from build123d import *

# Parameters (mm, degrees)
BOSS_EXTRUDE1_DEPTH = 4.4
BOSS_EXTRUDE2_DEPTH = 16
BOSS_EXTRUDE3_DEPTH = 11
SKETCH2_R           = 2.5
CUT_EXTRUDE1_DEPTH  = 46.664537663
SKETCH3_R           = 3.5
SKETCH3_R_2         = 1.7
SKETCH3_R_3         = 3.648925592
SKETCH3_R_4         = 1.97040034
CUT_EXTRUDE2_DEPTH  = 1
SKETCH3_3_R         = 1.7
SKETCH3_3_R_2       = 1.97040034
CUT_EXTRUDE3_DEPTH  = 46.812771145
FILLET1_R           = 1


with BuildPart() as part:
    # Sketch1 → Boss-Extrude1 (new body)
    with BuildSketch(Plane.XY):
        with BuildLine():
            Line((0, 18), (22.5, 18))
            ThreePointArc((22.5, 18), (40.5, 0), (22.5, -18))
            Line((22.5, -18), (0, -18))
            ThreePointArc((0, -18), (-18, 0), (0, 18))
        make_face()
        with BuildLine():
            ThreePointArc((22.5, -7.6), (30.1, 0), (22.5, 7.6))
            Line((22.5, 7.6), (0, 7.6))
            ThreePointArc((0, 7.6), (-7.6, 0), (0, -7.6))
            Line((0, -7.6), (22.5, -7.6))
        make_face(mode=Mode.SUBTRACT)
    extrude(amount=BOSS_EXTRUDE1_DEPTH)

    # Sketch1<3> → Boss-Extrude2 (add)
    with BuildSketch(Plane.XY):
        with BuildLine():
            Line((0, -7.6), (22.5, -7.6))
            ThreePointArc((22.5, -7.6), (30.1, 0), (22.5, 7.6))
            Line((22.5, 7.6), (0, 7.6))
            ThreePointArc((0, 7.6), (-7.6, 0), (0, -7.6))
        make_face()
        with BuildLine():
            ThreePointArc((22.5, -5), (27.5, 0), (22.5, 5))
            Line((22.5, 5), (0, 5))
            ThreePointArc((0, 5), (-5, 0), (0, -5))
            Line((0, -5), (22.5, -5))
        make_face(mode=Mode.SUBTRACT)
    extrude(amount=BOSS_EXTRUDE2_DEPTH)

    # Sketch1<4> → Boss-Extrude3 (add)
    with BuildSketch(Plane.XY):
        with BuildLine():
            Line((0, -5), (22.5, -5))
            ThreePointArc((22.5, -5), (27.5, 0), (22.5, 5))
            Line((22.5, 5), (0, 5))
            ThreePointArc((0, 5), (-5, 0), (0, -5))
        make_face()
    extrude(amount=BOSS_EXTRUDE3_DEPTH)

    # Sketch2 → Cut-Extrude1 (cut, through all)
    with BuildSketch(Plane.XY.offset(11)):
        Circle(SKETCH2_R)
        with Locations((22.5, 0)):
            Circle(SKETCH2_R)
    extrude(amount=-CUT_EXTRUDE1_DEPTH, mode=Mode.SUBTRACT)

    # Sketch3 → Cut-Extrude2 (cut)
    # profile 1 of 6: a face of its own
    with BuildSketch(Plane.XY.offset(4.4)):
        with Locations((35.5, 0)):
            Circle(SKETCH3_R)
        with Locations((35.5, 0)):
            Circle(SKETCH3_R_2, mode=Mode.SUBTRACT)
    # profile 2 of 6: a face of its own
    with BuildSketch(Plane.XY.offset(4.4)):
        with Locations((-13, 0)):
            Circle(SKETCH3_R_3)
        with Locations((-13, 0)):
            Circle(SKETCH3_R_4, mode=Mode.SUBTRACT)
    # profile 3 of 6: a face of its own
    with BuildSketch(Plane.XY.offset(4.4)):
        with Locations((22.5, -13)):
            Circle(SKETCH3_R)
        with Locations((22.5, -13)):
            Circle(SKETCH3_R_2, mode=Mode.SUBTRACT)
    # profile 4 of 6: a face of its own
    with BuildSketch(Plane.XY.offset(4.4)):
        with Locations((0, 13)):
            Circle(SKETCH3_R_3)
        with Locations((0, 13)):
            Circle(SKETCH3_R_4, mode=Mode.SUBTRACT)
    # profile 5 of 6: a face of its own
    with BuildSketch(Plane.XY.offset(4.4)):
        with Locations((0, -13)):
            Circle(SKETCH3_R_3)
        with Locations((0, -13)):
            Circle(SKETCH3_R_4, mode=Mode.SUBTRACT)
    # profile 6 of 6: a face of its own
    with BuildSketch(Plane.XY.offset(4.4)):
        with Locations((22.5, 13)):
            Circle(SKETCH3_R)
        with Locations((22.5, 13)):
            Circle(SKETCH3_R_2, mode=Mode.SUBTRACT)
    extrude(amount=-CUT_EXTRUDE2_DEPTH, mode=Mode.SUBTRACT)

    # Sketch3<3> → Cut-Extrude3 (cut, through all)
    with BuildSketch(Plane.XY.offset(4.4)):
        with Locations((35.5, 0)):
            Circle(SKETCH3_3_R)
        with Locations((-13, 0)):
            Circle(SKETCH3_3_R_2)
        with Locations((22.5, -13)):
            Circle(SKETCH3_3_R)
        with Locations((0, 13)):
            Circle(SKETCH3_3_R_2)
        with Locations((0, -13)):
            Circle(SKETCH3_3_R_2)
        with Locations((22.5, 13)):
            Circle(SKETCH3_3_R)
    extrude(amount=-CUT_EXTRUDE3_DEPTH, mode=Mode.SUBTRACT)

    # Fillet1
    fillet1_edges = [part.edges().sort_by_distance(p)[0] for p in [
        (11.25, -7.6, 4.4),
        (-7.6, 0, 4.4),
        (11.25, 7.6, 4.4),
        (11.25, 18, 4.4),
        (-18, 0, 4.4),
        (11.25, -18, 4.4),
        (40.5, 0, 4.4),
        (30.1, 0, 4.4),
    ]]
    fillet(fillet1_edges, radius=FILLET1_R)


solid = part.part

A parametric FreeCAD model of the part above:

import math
import FreeCAD as App
import Part
import Sketcher
Q = App.Units.Quantity


def edges_at(feature, points):
    """Names of the edges that pass closest to the given points."""
    edges = feature.Shape.Edges
    near = lambda p: min(range(len(edges)), key=lambda i: edges[i].distToShape(Part.Vertex(*p))[0])
    return sorted({f"Edge{near(p) + 1}" for p in points})

doc = App.newDocument("Part")
params = doc.addObject("Spreadsheet::Sheet", "Params")
for row, (alias, value) in enumerate([
    ("sketch1_radius", "18 mm"),
    ("sketch1_radius2", "7.6 mm"),
    ("sketch1_width", "22.5 mm"),
    ("pad1_length", "4.4 mm"),
    ("sketch2_radius", "5 mm"),
    ("sketch2_radius2", "7.6 mm"),
    ("sketch2_width", "22.5 mm"),
    ("pad2_length", "16 mm"),
    ("sketch3_radius", "5 mm"),
    ("sketch3_width", "22.5 mm"),
    ("pad3_length", "11 mm"),
    ("sketch4_diameter", "5 mm"),
    ("sketch5_diameter", "7 mm"),
    ("sketch5_diameter2", "3.4 mm"),
    ("pocket2_length", "1 mm"),
    ("sketch6_diameter", "3.4 mm"),
    ("fillet_radius", "1 mm"),
], start=1):
    params.set(f"A{row}", alias)
    params.set(f"B{row}", "=" + value)
    params.setAlias(f"B{row}", alias)

body = doc.addObject("PartDesign::Body", "Body")

# Sketch on XY plane
sketch1 = doc.addObject("Sketcher::SketchObject", "Sketch")
body.addObject(sketch1)
sketch1.AttachmentSupport = (doc.XY_Plane, [""])
sketch1.MapMode = "FlatFace"
sketch1.addGeometry([
    Part.LineSegment(App.Vector(22, 18, 0), App.Vector(0, 18, 0)),  # 0
    Part.ArcOfCircle(Part.Circle(App.Vector(0, 0, 0), App.Vector(0, 0, 1), 18), math.radians(90), math.radians(270)),  # 1
    Part.LineSegment(App.Vector(0, -18, 0), App.Vector(22, -18, 0)),  # 2
    Part.ArcOfCircle(Part.Circle(App.Vector(22, 0, 0), App.Vector(0, 0, 1), 18), math.radians(-90), math.radians(90)),  # 3
    Part.LineSegment(App.Vector(22, -8, 0), App.Vector(0, -8, 0)),  # 4
    Part.ArcOfCircle(Part.Circle(App.Vector(0, 0, 0), App.Vector(0, 0, 1), 8), math.radians(90), math.radians(270)),  # 5
    Part.LineSegment(App.Vector(0, 8, 0), App.Vector(22, 8, 0)),  # 6
    Part.ArcOfCircle(Part.Circle(App.Vector(22, 0, 0), App.Vector(0, 0, 1), 8), math.radians(-90), math.radians(90)),  # 7
], False)
sketch1.addConstraint([
    Sketcher.Constraint("Tangent", 0, 2, 1, 1),
    Sketcher.Constraint("Tangent", 1, 2, 2, 1),
    Sketcher.Constraint("Tangent", 2, 2, 3, 1),
    Sketcher.Constraint("Tangent", 3, 2, 0, 1),
    Sketcher.Constraint("Tangent", 4, 2, 5, 2),
    Sketcher.Constraint("Tangent", 5, 1, 6, 1),
    Sketcher.Constraint("Tangent", 6, 2, 7, 2),
    Sketcher.Constraint("Tangent", 7, 1, 4, 1),
    Sketcher.Constraint("Horizontal", 0),
    Sketcher.Constraint("Horizontal", 2),
    Sketcher.Constraint("Horizontal", 4),
    Sketcher.Constraint("Horizontal", 6),
    Sketcher.Constraint("Coincident", 1, 3, -1, 1),
    Sketcher.Constraint("Coincident", 5, 3, -1, 1),
    Sketcher.Constraint("Vertical", 7, 3, 2, 2),
    Sketcher.Constraint("Radius", 1, Q("18 mm")),
    Sketcher.Constraint("Radius", 5, Q("7.6 mm")),
    Sketcher.Constraint("DistanceX", 0, 2, 0, 1, Q("22.5 mm")),
])
sketch1.setExpression("Constraints[15]", "Params.sketch1_radius")
sketch1.setExpression("Constraints[16]", "Params.sketch1_radius2")
sketch1.setExpression("Constraints[17]", "Params.sketch1_width")
pad1 = doc.addObject("PartDesign::Pad", "Pad")
body.addObject(pad1)
pad1.Profile = sketch1
pad1.setExpression("Length", "Params.pad1_length")

# Sketch on XY plane
sketch2 = doc.addObject("Sketcher::SketchObject", "Sketch001")
body.addObject(sketch2)
sketch2.AttachmentSupport = (doc.XY_Plane, [""])
sketch2.MapMode = "FlatFace"
sketch2.addGeometry([
    Part.LineSegment(App.Vector(0, -8, 0), App.Vector(22, -8, 0)),  # 0
    Part.ArcOfCircle(Part.Circle(App.Vector(22, 0, 0), App.Vector(0, 0, 1), 8), math.radians(-90), math.radians(90)),  # 1
    Part.LineSegment(App.Vector(22, 8, 0), App.Vector(0, 8, 0)),  # 2
    Part.ArcOfCircle(Part.Circle(App.Vector(0, 0, 0), App.Vector(0, 0, 1), 8), math.radians(90), math.radians(270)),  # 3
    Part.ArcOfCircle(Part.Circle(App.Vector(22, 0, 0), App.Vector(0, 0, 1), 5), math.radians(-90), math.radians(90)),  # 4
    Part.LineSegment(App.Vector(22, -5, 0), App.Vector(0, -5, 0)),  # 5
    Part.ArcOfCircle(Part.Circle(App.Vector(0, 0, 0), App.Vector(0, 0, 1), 5), math.radians(90), math.radians(270)),  # 6
    Part.LineSegment(App.Vector(0, 5, 0), App.Vector(22, 5, 0)),  # 7
], False)
sketch2.addConstraint([
    Sketcher.Constraint("Tangent", 0, 2, 1, 1),
    Sketcher.Constraint("Tangent", 1, 2, 2, 1),
    Sketcher.Constraint("Tangent", 2, 2, 3, 1),
    Sketcher.Constraint("Tangent", 3, 2, 0, 1),
    Sketcher.Constraint("Tangent", 4, 1, 5, 1),
    Sketcher.Constraint("Tangent", 5, 2, 6, 2),
    Sketcher.Constraint("Tangent", 6, 1, 7, 1),
    Sketcher.Constraint("Tangent", 7, 2, 4, 2),
    Sketcher.Constraint("Horizontal", 0),
    Sketcher.Constraint("Horizontal", 2),
    Sketcher.Constraint("Horizontal", 5),
    Sketcher.Constraint("Horizontal", 7),
    Sketcher.Constraint("Coincident", 3, 3, -1, 1),
    Sketcher.Constraint("Coincident", 6, 3, -1, 1),
    Sketcher.Constraint("Vertical", 4, 3, 0, 2),
    Sketcher.Constraint("Radius", 4, Q("5 mm")),
    Sketcher.Constraint("Radius", 1, Q("7.6 mm")),
    Sketcher.Constraint("DistanceX", 0, 1, 0, 2, Q("22.5 mm")),
])
sketch2.setExpression("Constraints[15]", "Params.sketch2_radius")
sketch2.setExpression("Constraints[16]", "Params.sketch2_radius2")
sketch2.setExpression("Constraints[17]", "Params.sketch2_width")
pad2 = doc.addObject("PartDesign::Pad", "Pad001")
body.addObject(pad2)
pad2.Profile = sketch2
pad2.setExpression("Length", "Params.pad2_length")

# Sketch on XY plane
sketch3 = doc.addObject("Sketcher::SketchObject", "Sketch002")
body.addObject(sketch3)
sketch3.AttachmentSupport = (doc.XY_Plane, [""])
sketch3.MapMode = "FlatFace"
sketch3.addGeometry([
    Part.LineSegment(App.Vector(0, -5, 0), App.Vector(22, -5, 0)),
    Part.ArcOfCircle(Part.Circle(App.Vector(22, 0, 0), App.Vector(0, 0, 1), 5), math.radians(-90), math.radians(90)),
    Part.LineSegment(App.Vector(22, 5, 0), App.Vector(0, 5, 0)),
    Part.ArcOfCircle(Part.Circle(App.Vector(0, 0, 0), App.Vector(0, 0, 1), 5), math.radians(90), math.radians(270)),
], False)
sketch3.addConstraint([
    Sketcher.Constraint("Tangent", 0, 2, 1, 1),
    Sketcher.Constraint("Tangent", 1, 2, 2, 1),
    Sketcher.Constraint("Tangent", 2, 2, 3, 1),
    Sketcher.Constraint("Tangent", 3, 2, 0, 1),
    Sketcher.Constraint("Horizontal", 0),
    Sketcher.Constraint("Horizontal", 2),
    Sketcher.Constraint("Coincident", 3, 3, -1, 1),
    Sketcher.Constraint("Radius", 1, Q("5 mm")),
    Sketcher.Constraint("DistanceX", 0, 1, 0, 2, Q("22.5 mm")),
])
sketch3.setExpression("Constraints[7]", "Params.sketch3_radius")
sketch3.setExpression("Constraints[8]", "Params.sketch3_width")
pad3 = doc.addObject("PartDesign::Pad", "Pad002")
body.addObject(pad3)
pad3.Profile = sketch3
pad3.setExpression("Length", "Params.pad3_length")

# Sketch on XY plane
sketch4 = doc.addObject("Sketcher::SketchObject", "Sketch003")
body.addObject(sketch4)
sketch4.AttachmentSupport = (doc.XY_Plane, [""])
sketch4.MapMode = "FlatFace"
sketch4.AttachmentOffset = App.Placement(App.Vector(0, 0, 11), App.Rotation())
sketch4.addGeometry([
    Part.Circle(App.Vector(0, 0, 0), App.Vector(0, 0, 1), 2.5),
    Part.Circle(App.Vector(22.5, 0, 0), App.Vector(0, 0, 1), 2.5),
], False)
sketch4.addConstraint([
    Sketcher.Constraint("Coincident", 0, 3, -1, 1),
    Sketcher.Constraint("Equal", 0, 1),
    Sketcher.Constraint("PointOnObject", 1, 3, -1),
    Sketcher.Constraint("Diameter", 0, Q("5 mm")),
    Sketcher.Constraint("DistanceX", -1, 1, 1, 3, Q("22.5 mm")),
])
sketch4.setExpression("Constraints[3]", "Params.sketch4_diameter")
pocket1 = doc.addObject("PartDesign::Pocket", "Pocket")
body.addObject(pocket1)
pocket1.Profile = sketch4
pocket1.Type = "ThroughAll"

# Sketch on XY plane
sketch5 = doc.addObject("Sketcher::SketchObject", "Sketch004")
body.addObject(sketch5)
sketch5.AttachmentSupport = (doc.XY_Plane, [""])
sketch5.MapMode = "FlatFace"
sketch5.AttachmentOffset = App.Placement(App.Vector(0, 0, 4.4), App.Rotation())
sketch5.addGeometry([
    Part.Circle(App.Vector(35.5, 0, 0), App.Vector(0, 0, 1), 3.5),  # 0
    Part.Circle(App.Vector(35.5, 0, 0), App.Vector(0, 0, 1), 1.7),  # 1
    Part.Circle(App.Vector(-13, 0, 0), App.Vector(0, 0, 1), 3.6),  # 2
    Part.Circle(App.Vector(-13, 0, 0), App.Vector(0, 0, 1), 2),  # 3
    Part.Circle(App.Vector(22.5, -13, 0), App.Vector(0, 0, 1), 3.5),  # 4
    Part.Circle(App.Vector(22.5, -13, 0), App.Vector(0, 0, 1), 1.7),  # 5
    Part.Circle(App.Vector(0, 13, 0), App.Vector(0, 0, 1), 3.6),  # 6
    Part.Circle(App.Vector(0, 13, 0), App.Vector(0, 0, 1), 2),  # 7
    Part.Circle(App.Vector(0, -13, 0), App.Vector(0, 0, 1), 3.6),  # 8
    Part.Circle(App.Vector(0, -13, 0), App.Vector(0, 0, 1), 2),  # 9
    Part.Circle(App.Vector(22.5, 13, 0), App.Vector(0, 0, 1), 3.5),  # 10
    Part.Circle(App.Vector(22.5, 13, 0), App.Vector(0, 0, 1), 1.7),  # 11
], False)
sketch5.addConstraint([
    Sketcher.Constraint("Coincident", 1, 3, 0, 3),
    Sketcher.Constraint("Coincident", 3, 3, 2, 3),
    Sketcher.Constraint("Coincident", 5, 3, 4, 3),
    Sketcher.Constraint("Coincident", 7, 3, 6, 3),
    Sketcher.Constraint("Coincident", 9, 3, 8, 3),
    Sketcher.Constraint("Coincident", 11, 3, 10, 3),
    Sketcher.Constraint("Equal", 0, 4),
    Sketcher.Constraint("Equal", 1, 5),
    Sketcher.Constraint("Equal", 2, 6),
    Sketcher.Constraint("Equal", 3, 7),
    Sketcher.Constraint("Equal", 6, 8),
    Sketcher.Constraint("Equal", 7, 9),
    Sketcher.Constraint("Equal", 4, 10),
    Sketcher.Constraint("Equal", 5, 11),
    Sketcher.Constraint("Symmetric", 6, 3, 8, 3, -1, 1),
    Sketcher.Constraint("Symmetric", 4, 3, 10, 3, -1),
    Sketcher.Constraint("PointOnObject", 0, 3, -1),
    Sketcher.Constraint("PointOnObject", 2, 3, -1),
    Sketcher.Constraint("PointOnObject", 6, 3, -2),
    Sketcher.Constraint("Horizontal", 5, 3, 8, 3),
    Sketcher.Constraint("Diameter", 0, Q("7 mm")),
    Sketcher.Constraint("Diameter", 1, Q("3.4 mm")),
    Sketcher.Constraint("DistanceX", 2, 3, -1, 1, Q("13 mm")),
    Sketcher.Constraint("DistanceY", 4, 3, -1, 1, Q("13 mm")),
    Sketcher.Constraint("DistanceX", 4, 3, 0, 3, Q("13 mm")),
    Sketcher.Constraint("Diameter", 3, Q("3.940801 mm")),
    Sketcher.Constraint("DistanceX", -1, 1, 0, 3, Q("35.5 mm")),
    Sketcher.Constraint("Diameter", 2, Q("7.297851 mm")),
])
sketch5.setExpression("Constraints[20]", "Params.sketch5_diameter")
sketch5.setExpression("Constraints[21]", "Params.sketch5_diameter2")
pocket2 = doc.addObject("PartDesign::Pocket", "Pocket001")
body.addObject(pocket2)
pocket2.Profile = sketch5
pocket2.setExpression("Length", "Params.pocket2_length")

# Sketch on XY plane
sketch6 = doc.addObject("Sketcher::SketchObject", "Sketch005")
body.addObject(sketch6)
sketch6.AttachmentSupport = (doc.XY_Plane, [""])
sketch6.MapMode = "FlatFace"
sketch6.AttachmentOffset = App.Placement(App.Vector(0, 0, 4.4), App.Rotation())
sketch6.addGeometry([
    Part.Circle(App.Vector(35.5, 0, 0), App.Vector(0, 0, 1), 1.7),  # 0
    Part.Circle(App.Vector(-13, 0, 0), App.Vector(0, 0, 1), 2),  # 1
    Part.Circle(App.Vector(22.5, -13, 0), App.Vector(0, 0, 1), 1.7),  # 2
    Part.Circle(App.Vector(0, 13, 0), App.Vector(0, 0, 1), 2),  # 3
    Part.Circle(App.Vector(0, -13, 0), App.Vector(0, 0, 1), 2),  # 4
    Part.Circle(App.Vector(22.5, 13, 0), App.Vector(0, 0, 1), 1.7),  # 5
], False)
sketch6.addConstraint([
    Sketcher.Constraint("Equal", 0, 2),
    Sketcher.Constraint("Equal", 1, 3),
    Sketcher.Constraint("Equal", 3, 4),
    Sketcher.Constraint("Equal", 2, 5),
    Sketcher.Constraint("Symmetric", 3, 3, 4, 3, -1, 1),
    Sketcher.Constraint("Symmetric", 2, 3, 5, 3, -1),
    Sketcher.Constraint("PointOnObject", 0, 3, -1),
    Sketcher.Constraint("PointOnObject", 1, 3, -1),
    Sketcher.Constraint("PointOnObject", 3, 3, -2),
    Sketcher.Constraint("Horizontal", 2, 3, 4, 3),
    Sketcher.Constraint("Diameter", 0, Q("3.4 mm")),
    Sketcher.Constraint("DistanceX", 1, 3, -1, 1, Q("13 mm")),
    Sketcher.Constraint("DistanceY", 2, 3, -1, 1, Q("13 mm")),
    Sketcher.Constraint("DistanceX", 2, 3, 0, 3, Q("13 mm")),
    Sketcher.Constraint("Diameter", 1, Q("3.940801 mm")),
    Sketcher.Constraint("DistanceX", -1, 1, 0, 3, Q("35.5 mm")),
])
sketch6.setExpression("Constraints[10]", "Params.sketch6_diameter")
pocket3 = doc.addObject("PartDesign::Pocket", "Pocket002")
body.addObject(pocket3)
pocket3.Profile = sketch6
pocket3.Type = "ThroughAll"
doc.recompute()

fillet = doc.addObject("PartDesign::Fillet", "Fillet")
body.addObject(fillet)
fillet.Base = (pocket3, edges_at(pocket3, [
    (11.25, -7.6, 4.4),
    (-7.6, 0, 4.4),
    (11.25, 7.6, 4.4),
    (11.25, 18, 4.4),
    (-18, 0, 4.4),
    (11.25, -18, 4.4),
    (40.5, 0, 4.4),
    (30.1, 0, 4.4),
]))
fillet.setExpression("Radius", "Params.fillet_radius")

doc.recompute()
